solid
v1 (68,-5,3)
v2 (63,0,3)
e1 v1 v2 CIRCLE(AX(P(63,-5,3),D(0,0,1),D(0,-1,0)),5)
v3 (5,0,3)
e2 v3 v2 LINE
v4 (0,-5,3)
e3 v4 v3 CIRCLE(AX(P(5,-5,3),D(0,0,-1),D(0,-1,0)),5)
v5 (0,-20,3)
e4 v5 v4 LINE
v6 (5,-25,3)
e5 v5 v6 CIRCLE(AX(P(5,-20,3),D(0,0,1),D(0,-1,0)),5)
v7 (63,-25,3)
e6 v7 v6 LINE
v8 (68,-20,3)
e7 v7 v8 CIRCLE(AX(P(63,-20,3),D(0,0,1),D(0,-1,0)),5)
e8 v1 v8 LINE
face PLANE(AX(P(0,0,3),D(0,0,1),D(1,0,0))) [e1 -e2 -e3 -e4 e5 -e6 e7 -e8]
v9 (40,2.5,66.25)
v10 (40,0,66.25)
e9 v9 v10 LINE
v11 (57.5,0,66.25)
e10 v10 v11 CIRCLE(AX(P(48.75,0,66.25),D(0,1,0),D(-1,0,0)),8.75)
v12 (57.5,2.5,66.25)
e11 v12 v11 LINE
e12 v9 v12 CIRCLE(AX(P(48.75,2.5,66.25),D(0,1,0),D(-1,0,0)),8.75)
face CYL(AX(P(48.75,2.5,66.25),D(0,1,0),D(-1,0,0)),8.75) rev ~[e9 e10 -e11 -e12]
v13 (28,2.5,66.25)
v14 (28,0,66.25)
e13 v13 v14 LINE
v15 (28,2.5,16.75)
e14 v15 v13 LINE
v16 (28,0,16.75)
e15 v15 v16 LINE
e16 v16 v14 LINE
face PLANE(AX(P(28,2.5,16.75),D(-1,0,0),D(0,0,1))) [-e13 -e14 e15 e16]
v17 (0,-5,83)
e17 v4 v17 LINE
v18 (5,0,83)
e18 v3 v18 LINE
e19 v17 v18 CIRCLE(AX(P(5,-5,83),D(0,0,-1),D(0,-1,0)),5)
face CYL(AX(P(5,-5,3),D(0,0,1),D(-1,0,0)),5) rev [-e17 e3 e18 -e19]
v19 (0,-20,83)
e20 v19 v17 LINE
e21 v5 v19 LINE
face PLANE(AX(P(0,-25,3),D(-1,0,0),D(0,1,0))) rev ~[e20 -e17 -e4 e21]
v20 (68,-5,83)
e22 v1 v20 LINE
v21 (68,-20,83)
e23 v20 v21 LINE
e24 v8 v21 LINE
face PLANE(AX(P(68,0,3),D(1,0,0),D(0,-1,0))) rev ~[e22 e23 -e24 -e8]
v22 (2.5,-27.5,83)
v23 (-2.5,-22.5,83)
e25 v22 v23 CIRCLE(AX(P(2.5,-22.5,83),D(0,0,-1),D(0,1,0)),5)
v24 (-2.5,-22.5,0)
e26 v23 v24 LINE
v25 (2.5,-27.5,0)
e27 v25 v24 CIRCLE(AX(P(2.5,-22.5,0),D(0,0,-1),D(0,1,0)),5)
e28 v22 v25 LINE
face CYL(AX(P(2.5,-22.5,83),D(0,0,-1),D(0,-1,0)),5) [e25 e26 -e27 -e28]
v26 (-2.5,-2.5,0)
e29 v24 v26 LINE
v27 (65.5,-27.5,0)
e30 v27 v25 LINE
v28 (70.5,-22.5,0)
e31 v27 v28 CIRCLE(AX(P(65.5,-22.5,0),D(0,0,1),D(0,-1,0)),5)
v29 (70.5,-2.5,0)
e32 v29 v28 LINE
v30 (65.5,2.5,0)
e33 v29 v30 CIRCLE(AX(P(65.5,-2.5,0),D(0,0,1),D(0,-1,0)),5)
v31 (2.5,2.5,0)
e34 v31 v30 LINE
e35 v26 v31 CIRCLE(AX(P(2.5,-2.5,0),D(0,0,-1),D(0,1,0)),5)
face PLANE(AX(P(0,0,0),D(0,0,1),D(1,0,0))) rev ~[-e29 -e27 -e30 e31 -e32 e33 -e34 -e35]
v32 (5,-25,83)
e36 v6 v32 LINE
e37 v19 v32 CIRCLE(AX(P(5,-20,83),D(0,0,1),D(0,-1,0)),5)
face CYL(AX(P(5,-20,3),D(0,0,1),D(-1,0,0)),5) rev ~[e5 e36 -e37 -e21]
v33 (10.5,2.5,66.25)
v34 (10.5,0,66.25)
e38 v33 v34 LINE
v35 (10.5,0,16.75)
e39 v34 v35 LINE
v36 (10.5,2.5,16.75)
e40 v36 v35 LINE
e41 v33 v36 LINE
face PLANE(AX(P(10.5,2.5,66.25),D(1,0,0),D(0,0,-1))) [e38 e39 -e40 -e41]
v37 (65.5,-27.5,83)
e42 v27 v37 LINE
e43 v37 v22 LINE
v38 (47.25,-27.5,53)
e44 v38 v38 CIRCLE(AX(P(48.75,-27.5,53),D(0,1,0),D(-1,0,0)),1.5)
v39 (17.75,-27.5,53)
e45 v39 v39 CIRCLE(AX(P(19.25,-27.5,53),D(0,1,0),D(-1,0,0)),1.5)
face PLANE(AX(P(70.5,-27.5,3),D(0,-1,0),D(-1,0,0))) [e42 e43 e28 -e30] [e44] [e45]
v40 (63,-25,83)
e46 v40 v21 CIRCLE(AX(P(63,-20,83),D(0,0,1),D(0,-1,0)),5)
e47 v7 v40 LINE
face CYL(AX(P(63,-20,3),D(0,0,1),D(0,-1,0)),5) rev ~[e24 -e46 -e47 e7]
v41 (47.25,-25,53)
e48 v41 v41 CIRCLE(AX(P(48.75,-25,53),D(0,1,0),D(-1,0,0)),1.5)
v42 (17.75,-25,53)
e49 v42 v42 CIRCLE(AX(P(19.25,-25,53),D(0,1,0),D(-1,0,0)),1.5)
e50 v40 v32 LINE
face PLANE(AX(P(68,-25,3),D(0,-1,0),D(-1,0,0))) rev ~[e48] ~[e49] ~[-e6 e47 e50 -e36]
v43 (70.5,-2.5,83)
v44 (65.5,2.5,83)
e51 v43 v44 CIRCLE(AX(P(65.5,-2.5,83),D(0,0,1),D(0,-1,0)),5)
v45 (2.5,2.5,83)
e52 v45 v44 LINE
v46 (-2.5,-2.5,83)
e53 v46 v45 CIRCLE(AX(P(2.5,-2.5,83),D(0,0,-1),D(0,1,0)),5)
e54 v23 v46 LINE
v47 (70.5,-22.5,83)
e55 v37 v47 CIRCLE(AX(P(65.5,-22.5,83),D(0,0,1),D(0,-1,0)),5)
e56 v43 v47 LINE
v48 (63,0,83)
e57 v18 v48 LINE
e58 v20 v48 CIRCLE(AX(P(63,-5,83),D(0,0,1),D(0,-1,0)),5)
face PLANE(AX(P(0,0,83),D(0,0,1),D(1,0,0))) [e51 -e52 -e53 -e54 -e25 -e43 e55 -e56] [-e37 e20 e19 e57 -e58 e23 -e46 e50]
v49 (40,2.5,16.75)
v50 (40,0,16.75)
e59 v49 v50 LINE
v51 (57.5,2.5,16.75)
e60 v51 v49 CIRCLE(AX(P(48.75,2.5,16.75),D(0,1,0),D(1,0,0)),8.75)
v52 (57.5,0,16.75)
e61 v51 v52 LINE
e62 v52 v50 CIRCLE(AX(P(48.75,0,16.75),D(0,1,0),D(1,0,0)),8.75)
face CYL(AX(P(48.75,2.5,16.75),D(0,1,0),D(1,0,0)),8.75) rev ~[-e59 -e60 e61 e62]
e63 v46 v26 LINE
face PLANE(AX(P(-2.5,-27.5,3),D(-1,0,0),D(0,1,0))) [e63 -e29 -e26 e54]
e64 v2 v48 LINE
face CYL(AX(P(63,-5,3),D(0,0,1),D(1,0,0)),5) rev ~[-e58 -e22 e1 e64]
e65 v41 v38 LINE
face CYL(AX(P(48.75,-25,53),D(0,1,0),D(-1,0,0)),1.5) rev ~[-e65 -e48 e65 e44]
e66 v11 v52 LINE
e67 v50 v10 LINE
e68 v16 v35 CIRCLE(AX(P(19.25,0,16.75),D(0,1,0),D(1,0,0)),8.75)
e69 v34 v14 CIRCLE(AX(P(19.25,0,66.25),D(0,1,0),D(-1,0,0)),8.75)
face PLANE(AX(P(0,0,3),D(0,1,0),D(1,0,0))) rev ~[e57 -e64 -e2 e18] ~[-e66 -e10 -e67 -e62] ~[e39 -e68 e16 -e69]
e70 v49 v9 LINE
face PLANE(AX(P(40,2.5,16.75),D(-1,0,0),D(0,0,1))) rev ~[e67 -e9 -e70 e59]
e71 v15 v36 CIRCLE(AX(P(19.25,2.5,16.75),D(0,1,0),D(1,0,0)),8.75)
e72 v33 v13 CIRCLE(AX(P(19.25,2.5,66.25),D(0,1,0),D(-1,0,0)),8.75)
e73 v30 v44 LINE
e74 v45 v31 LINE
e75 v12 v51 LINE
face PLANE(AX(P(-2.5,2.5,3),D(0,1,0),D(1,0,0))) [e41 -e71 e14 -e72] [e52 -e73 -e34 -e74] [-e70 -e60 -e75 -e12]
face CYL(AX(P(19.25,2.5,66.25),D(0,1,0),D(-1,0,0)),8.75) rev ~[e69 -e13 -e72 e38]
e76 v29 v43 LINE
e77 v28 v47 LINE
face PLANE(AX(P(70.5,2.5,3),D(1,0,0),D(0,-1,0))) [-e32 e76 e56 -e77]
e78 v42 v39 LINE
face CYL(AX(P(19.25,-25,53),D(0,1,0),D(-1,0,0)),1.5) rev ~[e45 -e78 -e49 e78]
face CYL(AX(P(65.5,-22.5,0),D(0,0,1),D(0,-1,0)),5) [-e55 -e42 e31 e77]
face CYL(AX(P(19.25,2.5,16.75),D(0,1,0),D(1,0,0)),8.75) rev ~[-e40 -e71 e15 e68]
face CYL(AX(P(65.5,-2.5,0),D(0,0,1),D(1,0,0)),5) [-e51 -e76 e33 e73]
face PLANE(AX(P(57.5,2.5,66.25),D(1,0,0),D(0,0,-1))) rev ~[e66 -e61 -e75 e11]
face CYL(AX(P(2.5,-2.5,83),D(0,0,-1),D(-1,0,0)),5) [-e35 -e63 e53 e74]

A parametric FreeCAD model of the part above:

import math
import FreeCAD as App
import Part
import Sketcher
from FreeCAD import Vector


def edges_at(feature, points):
    """Names of the edges that pass closest to the given points."""
    edges = feature.Shape.Edges
    near = lambda p: min(range(len(edges)), key=lambda i: edges[i].distToShape(Part.Vertex(*p))[0])
    return sorted({f"Edge{near(p) + 1}" for p in points})


def add_polygon(sketch, points):
    """Adds a closed chain of lines whose ends are joined by coincident constraints."""
    first, n = sketch.GeometryCount, len(points)
    for a, b in zip(points, points[1:] + points[:1]):
        sketch.addGeometry(Part.LineSegment(App.Vector(*a, 0), App.Vector(*b, 0)), False)
    for i in range(n):
        sketch.addConstraint(Sketcher.Constraint("Coincident", first + i, 2, first + (i + 1) % n, 1))

doc = App.newDocument("Part")
body = doc.addObject("PartDesign::Body", "Body")

# Sketch on XY plane
sketch1 = doc.addObject("Sketcher::SketchObject", "Sketch")
body.addObject(sketch1)
sketch1.AttachmentSupport = (doc.XY_Plane, [""])
sketch1.MapMode = "FlatFace"
add_polygon(sketch1, [(-2, -28), (70, -28), (70, 2), (-2, 2)])  # lines 0-3
sketch1.addConstraint(Sketcher.Constraint("Horizontal", 0))
sketch1.addConstraint(Sketcher.Constraint("Vertical", 1))
sketch1.addConstraint(Sketcher.Constraint("Horizontal", 2))
sketch1.addConstraint(Sketcher.Constraint("Vertical", 3))
sketch1.addConstraint(Sketcher.Constraint("DistanceY", -1, 1, 1, 2, 2.5))
sketch1.addConstraint(Sketcher.Constraint("DistanceX", 2, 2, -1, 1, 2.5))
sketch1.addConstraint(Sketcher.Constraint("DistanceX", 0, 1, 0, 2, 73.0))
sketch1.addConstraint(Sketcher.Constraint("DistanceY", 1, 1, 1, 2, 30.0))
pad1 = doc.addObject("PartDesign::Pad", "Pad")
body.addObject(pad1)
pad1.Profile = sketch1
pad1.Length = 3

# Sketch on XY plane
sketch2 = doc.addObject("Sketcher::SketchObject", "Sketch001")
body.addObject(sketch2)
sketch2.AttachmentSupport = (doc.XY_Plane, [""])
sketch2.MapMode = "FlatFace"
sketch2.AttachmentOffset = App.Placement(Vector(0, 0, 3), App.Rotation())
add_polygon(sketch2, [(-2, -28), (70, -28), (70, 2), (-2, 2)])  # lines 0-3
add_polygon(sketch2, [(0, -25), (0, 0), (68, 0), (68, -25)])  # lines 4-7
sketch2.addConstraint(Sketcher.Constraint("Horizontal", 0))
sketch2.addConstraint(Sketcher.Constraint("Vertical", 1))
sketch2.addConstraint(Sketcher.Constraint("Horizontal", 2))
sketch2.addConstraint(Sketcher.Constraint("Vertical", 3))
sketch2.addConstraint(Sketcher.Constraint("Vertical", 4))
sketch2.addConstraint(Sketcher.Constraint("Horizontal", 5))
sketch2.addConstraint(Sketcher.Constraint("Vertical", 6))
sketch2.addConstraint(Sketcher.Constraint("Horizontal", 7))
sketch2.addConstraint(Sketcher.Constraint("Coincident", 4, 2, -1, 1))
sketch2.addConstraint(Sketcher.Constraint("DistanceX", 5, 1, 5, 2, 68.0))
sketch2.addConstraint(Sketcher.Constraint("DistanceY", 4, 1, 4, 2, 25.0))
sketch2.addConstraint(Sketcher.Constraint("DistanceY", -1, 1, 1, 2, 2.5))
sketch2.addConstraint(Sketcher.Constraint("DistanceX", 2, 2, -1, 1, 2.5))
sketch2.addConstraint(Sketcher.Constraint("DistanceX", 5, 2, 1, 2, 2.5))
sketch2.addConstraint(Sketcher.Constraint("DistanceY", 0, 2, 6, 2, 2.5))
pad2 = doc.addObject("PartDesign::Pad", "Pad001")
body.addObject(pad2)
pad2.Profile = sketch2
pad2.Length = 80
doc.recompute()

fillet = doc.addObject("PartDesign::Fillet", "Fillet")
body.addObject(fillet)
fillet.Base = (pad2, edges_at(pad2, [
    (-2.5, -27.5, 41.5),
    (70.5, -27.5, 41.5),
    (70.5, 2.5, 41.5),
    (0, 0, 43),
    (0, -25, 43),
    (68, -25, 43),
    (68, 0, 43),
    (-2.5, 2.5, 41.5),
]))
fillet.Radius = 5

# Sketch on XZ plane
sketch3 = doc.addObject("Sketcher::SketchObject", "Sketch002")
body.addObject(sketch3)
sketch3.AttachmentSupport = (doc.XZ_Plane, [""])
sketch3.MapMode = "FlatFace"
sketch3.AttachmentOffset = App.Placement(Vector(0, 0, -2.5), App.Rotation())
sketch3.addGeometry(Part.ArcOfCircle(Part.Circle(Vector(49, 66, 0), Vector(0, 0, 1), 9), math.radians(0), math.radians(180)), False)
sketch3.addGeometry(Part.LineSegment(Vector(58, 66, 0), Vector(58, 17, 0)), False)
sketch3.addGeometry(Part.ArcOfCircle(Part.Circle(Vector(49, 17, 0), Vector(0, 0, 1), 9), math.radians(180), math.radians(360)), False)
sketch3.addGeometry(Part.LineSegment(Vector(40, 17, 0), Vector(40, 66, 0)), False)
sketch3.addGeometry(Part.LineSegment(Vector(10, 17, 0), Vector(10, 66, 0)), False)
sketch3.addGeometry(Part.ArcOfCircle(Part.Circle(Vector(19, 66, 0), Vector(0, 0, 1), 9), math.radians(0), math.radians(180)), False)
sketch3.addGeometry(Part.LineSegment(Vector(28, 66, 0), Vector(28, 17, 0)), False)
sketch3.addGeometry(Part.ArcOfCircle(Part.Circle(Vector(19, 17, 0), Vector(0, 0, 1), 9), math.radians(180), math.radians(360)), False)
sketch3.addConstraint(Sketcher.Constraint("Tangent", 0, 1, 1, 1))
sketch3.addConstraint(Sketcher.Constraint("Tangent", 1, 2, 2, 2))
sketch3.addConstraint(Sketcher.Constraint("Tangent", 2, 1, 3, 1))
sketch3.addConstraint(Sketcher.Constraint("Tangent", 3, 2, 0, 2))
sketch3.addConstraint(Sketcher.Constraint("Tangent", 4, 2, 5, 2))
sketch3.addConstraint(Sketcher.Constraint("Tangent", 5, 1, 6, 1))
sketch3.addConstraint(Sketcher.Constraint("Tangent", 6, 2, 7, 2))
sketch3.addConstraint(Sketcher.Constraint("Tangent", 7, 1, 4, 1))
sketch3.addConstraint(Sketcher.Constraint("Vertical", 1))
sketch3.addConstraint(Sketcher.Constraint("Vertical", 3))
sketch3.addConstraint(Sketcher.Constraint("Vertical", 4))
sketch3.addConstraint(Sketcher.Constraint("Vertical", 6))
sketch3.addConstraint(Sketcher.Constraint("Equal", 2, 5))
sketch3.addConstraint(Sketcher.Constraint("Horizontal", 0, 3, 5, 3))
sketch3.addConstraint(Sketcher.Constraint("Horizontal", 2, 3, 7, 3))
sketch3.addConstraint(Sketcher.Constraint("Radius", 0, 8.75))
sketch3.addConstraint(Sketcher.Constraint("DistanceY", 1, 2, 1, 1, 49.5))
sketch3.addConstraint(Sketcher.Constraint("DistanceX", -1, 1, 2, 1, 40.0))
sketch3.addConstraint(Sketcher.Constraint("DistanceX", -1, 1, 5, 1, 28.0))
sketch3.addConstraint(Sketcher.Constraint("DistanceY", -1, 1, 0, 3, 66.25))
pocket1 = doc.addObject("PartDesign::Pocket", "Pocket")
body.addObject(pocket1)
pocket1.Profile = sketch3
pocket1.Length = 2.5
pocket1.Reversed = True

# Sketch on XZ plane
sketch4 = doc.addObject("Sketcher::SketchObject", "Sketch003")
body.addObject(sketch4)
sketch4.AttachmentSupport = (doc.XZ_Plane, [""])
sketch4.MapMode = "FlatFace"
sketch4.AttachmentOffset = App.Placement(Vector(0, 0, 25), App.Rotation())
sketch4.addGeometry(Part.Circle(Vector(48.8, 53, 0), Vector(0, 0, 1), 1.5), False)
sketch4.addGeometry(Part.Circle(Vector(19.2, 53, 0), Vector(0, 0, 1), 1.5), False)
sketch4.addConstraint(Sketcher.Constraint("Equal", 0, 1))
sketch4.addConstraint(Sketcher.Constraint("Horizontal", 0, 3, 1, 3))
sketch4.addConstraint(Sketcher.Constraint("Diameter", 0, 3.0))
sketch4.addConstraint(Sketcher.Constraint("DistanceY", -1, 1, 0, 3, 53.0))
sketch4.addConstraint(Sketcher.Constraint("DistanceX", 1, 3, 0, 3, 29.5))
sketch4.addConstraint(Sketcher.Constraint("DistanceX", -1, 1, 0, 3, 48.75))
pocket2 = doc.addObject("PartDesign::Pocket", "Pocket001")
body.addObject(pocket2)
pocket2.Profile = sketch4
pocket2.Length = 2.5
pocket2.Reversed = True

doc.recompute()
